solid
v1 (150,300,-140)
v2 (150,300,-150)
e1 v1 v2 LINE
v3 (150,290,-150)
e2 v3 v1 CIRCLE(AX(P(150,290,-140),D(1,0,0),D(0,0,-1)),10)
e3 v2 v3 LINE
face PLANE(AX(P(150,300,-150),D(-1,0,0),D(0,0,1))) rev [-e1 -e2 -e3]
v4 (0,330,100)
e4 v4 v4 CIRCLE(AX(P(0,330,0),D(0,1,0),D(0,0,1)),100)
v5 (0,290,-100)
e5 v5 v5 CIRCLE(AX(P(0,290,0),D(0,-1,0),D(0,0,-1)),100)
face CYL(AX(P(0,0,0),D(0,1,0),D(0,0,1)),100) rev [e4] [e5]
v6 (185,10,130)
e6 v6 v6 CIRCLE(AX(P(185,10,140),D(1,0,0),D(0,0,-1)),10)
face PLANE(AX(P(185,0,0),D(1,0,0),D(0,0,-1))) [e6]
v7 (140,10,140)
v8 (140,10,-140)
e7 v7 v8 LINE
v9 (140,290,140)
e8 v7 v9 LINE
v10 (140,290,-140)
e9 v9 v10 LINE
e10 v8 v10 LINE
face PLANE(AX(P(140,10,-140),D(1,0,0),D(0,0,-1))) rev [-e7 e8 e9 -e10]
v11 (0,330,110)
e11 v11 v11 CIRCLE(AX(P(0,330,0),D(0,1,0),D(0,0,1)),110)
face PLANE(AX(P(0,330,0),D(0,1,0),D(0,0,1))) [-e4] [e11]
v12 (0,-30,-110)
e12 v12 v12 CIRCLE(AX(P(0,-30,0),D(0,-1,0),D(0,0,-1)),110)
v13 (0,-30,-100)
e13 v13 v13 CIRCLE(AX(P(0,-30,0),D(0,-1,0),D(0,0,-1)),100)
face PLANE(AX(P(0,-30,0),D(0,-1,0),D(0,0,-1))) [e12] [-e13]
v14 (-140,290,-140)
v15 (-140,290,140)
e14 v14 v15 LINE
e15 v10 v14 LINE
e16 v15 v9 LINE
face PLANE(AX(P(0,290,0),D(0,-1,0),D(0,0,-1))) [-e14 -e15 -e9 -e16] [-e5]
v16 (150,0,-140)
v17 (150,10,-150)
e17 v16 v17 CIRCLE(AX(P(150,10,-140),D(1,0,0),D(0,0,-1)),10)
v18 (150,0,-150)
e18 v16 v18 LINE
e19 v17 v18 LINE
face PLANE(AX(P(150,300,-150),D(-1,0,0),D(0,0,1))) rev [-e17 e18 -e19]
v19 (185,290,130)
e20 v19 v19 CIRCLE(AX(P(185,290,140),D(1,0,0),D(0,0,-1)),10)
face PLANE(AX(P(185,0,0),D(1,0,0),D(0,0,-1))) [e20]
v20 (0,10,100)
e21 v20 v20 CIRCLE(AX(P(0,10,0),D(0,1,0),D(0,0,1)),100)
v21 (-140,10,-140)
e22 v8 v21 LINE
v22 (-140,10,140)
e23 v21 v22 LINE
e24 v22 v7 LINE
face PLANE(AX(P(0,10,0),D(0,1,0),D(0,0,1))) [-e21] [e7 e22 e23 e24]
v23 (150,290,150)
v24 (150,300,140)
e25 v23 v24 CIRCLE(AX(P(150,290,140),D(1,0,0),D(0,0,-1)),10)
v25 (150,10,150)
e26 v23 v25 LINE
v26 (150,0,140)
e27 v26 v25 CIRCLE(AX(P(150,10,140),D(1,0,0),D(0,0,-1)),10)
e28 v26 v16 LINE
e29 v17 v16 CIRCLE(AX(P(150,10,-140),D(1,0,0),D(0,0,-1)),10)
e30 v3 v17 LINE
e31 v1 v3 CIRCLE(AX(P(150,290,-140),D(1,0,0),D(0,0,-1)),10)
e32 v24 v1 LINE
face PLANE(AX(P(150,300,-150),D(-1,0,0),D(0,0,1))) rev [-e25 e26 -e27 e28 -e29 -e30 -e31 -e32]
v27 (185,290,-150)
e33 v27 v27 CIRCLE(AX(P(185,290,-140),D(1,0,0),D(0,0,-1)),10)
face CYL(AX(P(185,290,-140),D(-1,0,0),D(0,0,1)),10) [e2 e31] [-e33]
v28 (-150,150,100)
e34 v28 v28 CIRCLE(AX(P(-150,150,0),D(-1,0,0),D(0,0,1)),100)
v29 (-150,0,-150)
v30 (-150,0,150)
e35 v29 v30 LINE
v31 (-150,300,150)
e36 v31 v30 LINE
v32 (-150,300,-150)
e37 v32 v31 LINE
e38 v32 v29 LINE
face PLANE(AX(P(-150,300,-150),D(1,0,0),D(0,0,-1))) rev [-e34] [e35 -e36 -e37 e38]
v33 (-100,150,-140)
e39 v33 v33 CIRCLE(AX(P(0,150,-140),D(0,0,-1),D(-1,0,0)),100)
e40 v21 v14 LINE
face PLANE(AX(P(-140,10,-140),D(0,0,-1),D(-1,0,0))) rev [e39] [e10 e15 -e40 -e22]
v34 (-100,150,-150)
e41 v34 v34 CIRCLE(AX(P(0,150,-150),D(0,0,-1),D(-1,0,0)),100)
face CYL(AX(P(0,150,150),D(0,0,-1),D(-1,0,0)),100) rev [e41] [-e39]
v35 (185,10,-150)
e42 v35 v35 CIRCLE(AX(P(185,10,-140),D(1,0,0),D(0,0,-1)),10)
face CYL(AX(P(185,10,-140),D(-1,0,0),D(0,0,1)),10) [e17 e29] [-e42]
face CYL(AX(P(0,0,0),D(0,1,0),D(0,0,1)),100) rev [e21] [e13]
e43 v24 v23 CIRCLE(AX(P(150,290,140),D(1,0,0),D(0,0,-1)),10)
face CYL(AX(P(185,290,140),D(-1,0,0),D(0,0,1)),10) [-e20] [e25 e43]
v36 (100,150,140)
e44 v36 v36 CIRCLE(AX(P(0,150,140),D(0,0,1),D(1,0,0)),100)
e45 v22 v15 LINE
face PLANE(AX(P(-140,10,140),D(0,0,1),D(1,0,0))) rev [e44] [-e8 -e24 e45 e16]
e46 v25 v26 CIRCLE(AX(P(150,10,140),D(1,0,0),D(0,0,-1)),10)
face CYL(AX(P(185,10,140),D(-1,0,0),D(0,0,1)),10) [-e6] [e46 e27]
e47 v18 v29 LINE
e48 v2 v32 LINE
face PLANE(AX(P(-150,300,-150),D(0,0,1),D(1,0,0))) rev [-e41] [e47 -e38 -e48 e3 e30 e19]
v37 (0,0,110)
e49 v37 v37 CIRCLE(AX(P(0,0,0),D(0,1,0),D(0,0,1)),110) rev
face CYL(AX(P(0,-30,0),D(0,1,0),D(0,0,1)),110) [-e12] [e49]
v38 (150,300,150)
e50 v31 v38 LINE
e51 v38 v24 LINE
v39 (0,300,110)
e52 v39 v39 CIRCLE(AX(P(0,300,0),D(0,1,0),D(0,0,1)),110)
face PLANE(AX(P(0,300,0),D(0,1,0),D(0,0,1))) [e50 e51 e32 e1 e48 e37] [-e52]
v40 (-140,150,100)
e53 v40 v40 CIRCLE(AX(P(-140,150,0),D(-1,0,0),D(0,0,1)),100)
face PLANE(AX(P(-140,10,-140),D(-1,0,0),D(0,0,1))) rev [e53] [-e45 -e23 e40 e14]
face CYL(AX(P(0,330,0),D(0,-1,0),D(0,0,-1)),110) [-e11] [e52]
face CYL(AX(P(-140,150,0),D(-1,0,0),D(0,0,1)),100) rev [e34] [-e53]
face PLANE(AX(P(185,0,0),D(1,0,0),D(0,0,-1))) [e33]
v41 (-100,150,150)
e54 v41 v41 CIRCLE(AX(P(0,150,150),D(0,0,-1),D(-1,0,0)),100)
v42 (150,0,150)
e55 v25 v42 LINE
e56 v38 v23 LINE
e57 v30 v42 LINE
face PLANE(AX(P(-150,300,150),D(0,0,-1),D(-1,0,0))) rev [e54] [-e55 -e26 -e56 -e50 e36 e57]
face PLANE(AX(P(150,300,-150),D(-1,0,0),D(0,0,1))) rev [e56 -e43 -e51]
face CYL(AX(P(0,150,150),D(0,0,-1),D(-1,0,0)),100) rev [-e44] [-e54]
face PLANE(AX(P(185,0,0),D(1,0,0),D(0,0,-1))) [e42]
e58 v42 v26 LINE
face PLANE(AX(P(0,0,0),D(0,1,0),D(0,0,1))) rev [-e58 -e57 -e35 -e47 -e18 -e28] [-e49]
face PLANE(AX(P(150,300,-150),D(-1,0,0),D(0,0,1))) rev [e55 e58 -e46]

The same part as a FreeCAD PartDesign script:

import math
import FreeCAD as App
import Part
import Sketcher

doc = App.newDocument("Part")
body = doc.addObject("PartDesign::Body", "Body")

sketch1 = body.newObject("Sketcher::SketchObject", "Sketch")
sketch1.AttachmentSupport = (doc.getObject("XZ_Plane"), [""])
sketch1.MapMode = "FlatFace"
sketch1.addGeometry([
    Part.LineSegment(App.Vector(-150, -150, 0), App.Vector(-150, 150, 0)),
    Part.LineSegment(App.Vector(-150, 150, 0), App.Vector(150, 150, 0)),
    Part.LineSegment(App.Vector(150, 150, 0), App.Vector(150, -150, 0)),
    Part.LineSegment(App.Vector(150, -150, 0), App.Vector(-150, -150, 0)),
], False)
sketch1.addConstraint([
    Sketcher.Constraint("Coincident", 0, 2, 1, 1),
    Sketcher.Constraint("Coincident", 1, 2, 2, 1),
    Sketcher.Constraint("Coincident", 2, 2, 3, 1),
    Sketcher.Constraint("Coincident", 3, 2, 0, 1),
    Sketcher.Constraint("Vertical", 0),
    Sketcher.Constraint("Horizontal", 1),
    Sketcher.Constraint("Vertical", 2),
    Sketcher.Constraint("Horizontal", 3),
    Sketcher.Constraint("Symmetric", 0, 2, 2, 2, -1, 1),
    Sketcher.Constraint("Equal", 3, 0),
    Sketcher.Constraint("DistanceX", 1, 1, 1, 2, 300.0),
])
pad1 = body.newObject("PartDesign::Pad", "Pad")
pad1.Profile = sketch1
pad1.Length = 300
pad1.Reversed = True

sketch2 = body.newObject("Sketcher::SketchObject", "Sketch001")
sketch2.AttachmentSupport = (doc.getObject("XZ_Plane"), [""])
sketch2.MapMode = "FlatFace"
sketch2.AttachmentOffset = App.Placement(App.Vector(0, 0, -300), App.Rotation())
sketch2.addGeometry([
    Part.LineSegment(App.Vector(-140, -140, 0), App.Vector(-140, 140, 0)),
    Part.LineSegment(App.Vector(-140, 140, 0), App.Vector(140, 140, 0)),
    Part.LineSegment(App.Vector(140, 140, 0), App.Vector(140, -140, 0)),
    Part.LineSegment(App.Vector(140, -140, 0), App.Vector(-140, -140, 0)),
], False)
sketch2.addConstraint([
    Sketcher.Constraint("Coincident", 0, 2, 1, 1),
    Sketcher.Constraint("Coincident", 1, 2, 2, 1),
    Sketcher.Constraint("Coincident", 2, 2, 3, 1),
    Sketcher.Constraint("Coincident", 3, 2, 0, 1),
    Sketcher.Constraint("Vertical", 0),
    Sketcher.Constraint("Horizontal", 1),
    Sketcher.Constraint("Vertical", 2),
    Sketcher.Constraint("Horizontal", 3),
    Sketcher.Constraint("Symmetric", 0, 2, 2, 2, -1, 1),
    Sketcher.Constraint("Equal", 3, 0),
    Sketcher.Constraint("DistanceX", 1, 1, 1, 2, 280.0),
])
pocket1 = body.newObject("PartDesign::Pocket", "Pocket")
pocket1.Profile = sketch2
pocket1.Length = 290
pocket1.Reversed = True

sketch3 = body.newObject("Sketcher::SketchObject", "Sketch002")
sketch3.AttachmentSupport = (doc.getObject("XZ_Plane"), [""])
sketch3.MapMode = "FlatFace"
sketch3.AttachmentOffset = App.Placement(App.Vector(0, 0, -300), App.Rotation())
sketch3.addGeometry([
    Part.LineSegment(App.Vector(-150, -150, 0), App.Vector(-150, 150, 0)),
    Part.LineSegment(App.Vector(-150, 150, 0), App.Vector(150, 150, 0)),
    Part.LineSegment(App.Vector(150, 150, 0), App.Vector(150, -150, 0)),
    Part.LineSegment(App.Vector(150, -150, 0), App.Vector(-150, -150, 0)),
], False)
sketch3.addConstraint([
    Sketcher.Constraint("Coincident", 0, 2, 1, 1),
    Sketcher.Constraint("Coincident", 1, 2, 2, 1),
    Sketcher.Constraint("Coincident", 2, 2, 3, 1),
    Sketcher.Constraint("Coincident", 3, 2, 0, 1),
    Sketcher.Constraint("Vertical", 0),
    Sketcher.Constraint("Horizontal", 1),
    Sketcher.Constraint("Vertical", 2),
    Sketcher.Constraint("Horizontal", 3),
    Sketcher.Constraint("Symmetric", 0, 2, 2, 2, -1, 1),
    Sketcher.Constraint("Equal", 3, 0),
    Sketcher.Constraint("DistanceX", 1, 1, 1, 2, 300.0),
])
pad2 = body.newObject("PartDesign::Pad", "Pad001")
pad2.Profile = sketch3
pad2.Length = 10

sketch4 = body.newObject("Sketcher::SketchObject", "Sketch003")
sketch4.AttachmentSupport = (doc.getObject("XZ_Plane"), [""])
sketch4.MapMode = "FlatFace"
sketch4.AttachmentOffset = App.Placement(App.Vector(0, 0, -300), App.Rotation())
sketch4.addGeometry(Part.Circle(App.Vector(0, 0, 0), App.Vector(0, 0, 1), 100), False)
sketch4.addConstraint([
    Sketcher.Constraint("Coincident", 0, 3, -1, 1),
    Sketcher.Constraint("Diameter", 0, 200.0),
])
pocket2 = body.newObject("PartDesign::Pocket", "Pocket001")
pocket2.Profile = sketch4
pocket2.Type = "ThroughAll"
pocket2.Reversed = True

sketch5 = body.newObject("Sketcher::SketchObject", "Sketch004")
sketch5.AttachmentSupport = (doc.getObject("XY_Plane"), [""])
sketch5.MapMode = "FlatFace"
sketch5.AttachmentOffset = App.Placement(App.Vector(0, 0, -150), App.Rotation())
sketch5.addGeometry([
    Part.ArcOfCircle(Part.Circle(App.Vector(0, 150, 0), App.Vector(0, 0, 1), 100), math.radians(90), math.radians(180)),
    Part.ArcOfCircle(Part.Circle(App.Vector(0, 150, 0), App.Vector(0, 0, 1), 100), math.radians(-90), math.radians(90)),
    Part.ArcOfCircle(Part.Circle(App.Vector(0, 150, 0), App.Vector(0, 0, 1), 100), math.radians(180), math.radians(270)),
], False)
sketch5.addConstraint([
    Sketcher.Constraint("Tangent", 0, 1, 1, 2),
    Sketcher.Constraint("Tangent", 1, 1, 2, 2),
    Sketcher.Constraint("Tangent", 2, 1, 0, 2),
    Sketcher.Constraint("PointOnObject", 0, 3, -2),
    Sketcher.Constraint("PointOnObject", 0, 1, -2),
    Sketcher.Constraint("PointOnObject", 1, 1, -2),
    Sketcher.Constraint("Horizontal", 1, 3, 2, 1),
    Sketcher.Constraint("Radius", 0, 100.0),
    Sketcher.Constraint("DistanceY", -1, 1, 0, 3, 150.0),
])
pocket3 = body.newObject("PartDesign::Pocket", "Pocket002")
pocket3.Profile = sketch5
pocket3.Type = "ThroughAll"
pocket3.Reversed = True

sketch6 = body.newObject("Sketcher::SketchObject", "Sketch005")
sketch6.AttachmentSupport = (doc.getObject("YZ_Plane"), [""])
sketch6.MapMode = "FlatFace"
sketch6.AttachmentOffset = App.Placement(App.Vector(0, 0, -150), App.Rotation())
sketch6.addGeometry([
    Part.ArcOfCircle(Part.Circle(App.Vector(150, 0, 0), App.Vector(0, 0, 1), 100), math.radians(180), math.radians(360)),
    Part.ArcOfCircle(Part.Circle(App.Vector(150, 0, 0), App.Vector(0, 0, 1), 100), math.radians(90), math.radians(180)),
    Part.ArcOfCircle(Part.Circle(App.Vector(150, 0, 0), App.Vector(0, 0, 1), 100), math.radians(0), math.radians(90)),
], False)
sketch6.addConstraint([
    Sketcher.Constraint("Tangent", 0, 1, 1, 2),
    Sketcher.Constraint("Tangent", 1, 1, 2, 2),
    Sketcher.Constraint("Tangent", 2, 1, 0, 2),
    Sketcher.Constraint("PointOnObject", 0, 3, -1),
    Sketcher.Constraint("PointOnObject", 0, 1, -1),
    Sketcher.Constraint("PointOnObject", 2, 1, -1),
    Sketcher.Constraint("Vertical", 2, 3, 1, 1),
    Sketcher.Constraint("Radius", 0, 100.0),
    Sketcher.Constraint("DistanceX", -1, 1, 0, 3, 150.0),
])
pocket4 = body.newObject("PartDesign::Pocket", "Pocket003")
pocket4.Profile = sketch6
pocket4.Length = 10
pocket4.Reversed = True

sketch7 = body.newObject("Sketcher::SketchObject", "Sketch006")
sketch7.AttachmentSupport = (doc.getObject("YZ_Plane"), [""])
sketch7.MapMode = "FlatFace"
sketch7.AttachmentOffset = App.Placement(App.Vector(0, 0, 150), App.Rotation())
sketch7.addGeometry([
    Part.Circle(App.Vector(290, -140, 0), App.Vector(0, 0, 1), 10),
    Part.Circle(App.Vector(10, -140, 0), App.Vector(0, 0, 1), 10),
    Part.Circle(App.Vector(290, 140, 0), App.Vector(0, 0, 1), 10),
    Part.ArcOfCircle(Part.Circle(App.Vector(10, 140, 0), App.Vector(0, 0, 1), 10), math.radians(-90), math.radians(0)),
    Part.ArcOfCircle(Part.Circle(App.Vector(10, 140, 0), App.Vector(0, 0, 1), 10), math.radians(0), math.radians(90)),
    Part.ArcOfCircle(Part.Circle(App.Vector(10, 140, 0), App.Vector(0, 0, 1), 10), math.radians(90), math.radians(180)),
    Part.ArcOfCircle(Part.Circle(App.Vector(10, 140, 0), App.Vector(0, 0, 1), 10), math.radians(180), math.radians(270)),
], False)
sketch7.addConstraint([
    Sketcher.Constraint("Tangent", 3, 2, 4, 1),
    Sketcher.Constraint("Tangent", 4, 2, 5, 1),
    Sketcher.Constraint("Tangent", 5, 2, 6, 1),
    Sketcher.Constraint("Tangent", 6, 2, 3, 1),
    Sketcher.Constraint("Equal", 0, 1),
    Sketcher.Constraint("Equal", 1, 2),
    Sketcher.Constraint("Equal", 2, 3),
    Sketcher.Constraint("Equal", 3, 4),
    Sketcher.Constraint("Symmetric", 0, 3, 2, 3, -1),
    Sketcher.Constraint("Symmetric", 1, 3, 3, 3, -1),
    Sketcher.Constraint("PointOnObject", 5, 2, -2),
    Sketcher.Constraint("Horizontal", 0, 3, 1, 3),
    Sketcher.Constraint("Horizontal", 6, 3, 3, 2),
    Sketcher.Constraint("Horizontal", 3, 2, 5, 2),
    Sketcher.Constraint("Vertical", 6, 3, 4, 2),
    Sketcher.Constraint("Vertical", 4, 2, 6, 2),
    Sketcher.Constraint("Diameter", 0, 20.0),
    Sketcher.Constraint("DistanceX", -1, 1, 0, 3, 290.0),
    Sketcher.Constraint("DistanceY", 0, 3, -1, 1, 140.0),
])
pad3 = body.newObject("PartDesign::Pad", "Pad002")
pad3.Profile = sketch7
pad3.Length = 35

sketch8 = body.newObject("Sketcher::SketchObject", "Sketch007")
sketch8.AttachmentSupport = (doc.getObject("XZ_Plane"), [""])
sketch8.MapMode = "FlatFace"
sketch8.AttachmentOffset = App.Placement(App.Vector(0, 0, -300), App.Rotation())
sketch8.addGeometry([
    Part.Circle(App.Vector(0, 0, 0), App.Vector(0, 0, 1), 110),
    Part.Circle(App.Vector(0, 0, 0), App.Vector(0, 0, 1), 100),
], False)
sketch8.addConstraint([
    Sketcher.Constraint("Coincident", 0, 3, -1, 1),
    Sketcher.Constraint("Coincident", 1, 3, -1, 1),
    Sketcher.Constraint("Diameter", 0, 220.0),
    Sketcher.Constraint("Diameter", 1, 200.0),
])
pad4 = body.newObject("PartDesign::Pad", "Pad003")
pad4.Profile = sketch8
pad4.Length = 30
pad4.Reversed = True

sketch9 = body.newObject("Sketcher::SketchObject", "Sketch008")
sketch9.AttachmentSupport = (doc.getObject("XZ_Plane"), [""])
sketch9.MapMode = "FlatFace"
sketch9.addGeometry([
    Part.Circle(App.Vector(0, 0, 0), App.Vector(0, 0, 1), 110),
    Part.Circle(App.Vector(0, 0, 0), App.Vector(0, 0, 1), 100),
], False)
sketch9.addConstraint([
    Sketcher.Constraint("Coincident", 0, 3, -1, 1),
    Sketcher.Constraint("Coincident", 1, 3, -1, 1),
    Sketcher.Constraint("Diameter", 0, 220.0),
    Sketcher.Constraint("Diameter", 1, 200.0),
])
pad5 = body.newObject("PartDesign::Pad", "Pad004")
pad5.Profile = sketch9
pad5.Length = 30

doc.recompute()
